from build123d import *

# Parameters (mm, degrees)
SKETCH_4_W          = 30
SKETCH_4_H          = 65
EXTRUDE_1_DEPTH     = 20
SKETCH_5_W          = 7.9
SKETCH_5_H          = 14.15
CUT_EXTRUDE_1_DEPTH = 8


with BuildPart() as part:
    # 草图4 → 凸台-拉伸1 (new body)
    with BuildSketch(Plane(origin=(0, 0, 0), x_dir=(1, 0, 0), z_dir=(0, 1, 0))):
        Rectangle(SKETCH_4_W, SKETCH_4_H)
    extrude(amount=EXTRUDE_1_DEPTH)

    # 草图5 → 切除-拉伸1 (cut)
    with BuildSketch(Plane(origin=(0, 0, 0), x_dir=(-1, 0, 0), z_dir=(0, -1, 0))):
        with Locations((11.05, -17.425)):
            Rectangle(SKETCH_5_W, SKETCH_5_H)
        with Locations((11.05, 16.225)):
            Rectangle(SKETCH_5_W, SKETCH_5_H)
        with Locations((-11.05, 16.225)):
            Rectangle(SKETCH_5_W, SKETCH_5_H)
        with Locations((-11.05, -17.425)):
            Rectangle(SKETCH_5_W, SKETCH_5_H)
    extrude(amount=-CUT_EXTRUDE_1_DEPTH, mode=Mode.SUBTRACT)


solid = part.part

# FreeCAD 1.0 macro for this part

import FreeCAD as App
import Part
import Sketcher

V = App.Vector
Q = App.Units.Quantity


def add_polygon(sketch, points):
    """Adds a closed chain of lines whose ends are joined by coincident constraints."""
    first, n = sketch.GeometryCount, len(points)
    for a, b in zip(points, points[1:] + points[:1]):
        sketch.addGeometry(Part.LineSegment(App.Vector(*a, 0), App.Vector(*b, 0)), False)
    for i in range(n):
        sketch.addConstraint(Sketcher.Constraint("Coincident", first + i, 2, first + (i + 1) % n, 1))

doc = App.newDocument("Part")
body = doc.addObject("PartDesign::Body", "Body")

# Sketch on XZ plane
sketch1 = doc.addObject("Sketcher::SketchObject", "Sketch")
body.addObject(sketch1)
sketch1.AttachmentSupport = (doc.XZ_Plane, [""])
sketch1.MapMode = "FlatFace"
add_polygon(sketch1, [(-15, -32.5), (-15, 32.5), (15, 32.5), (15, -32.5)])  # lines 0-3
sketch1.addConstraint([
    Sketcher.Constraint("Vertical", 0),
    Sketcher.Constraint("Horizontal", 1),
    Sketcher.Constraint("Vertical", 2),
    Sketcher.Constraint("Horizontal", 3),
    Sketcher.Constraint("Symmetric", 0, 2, 2, 2, -1, 1),
    Sketcher.Constraint("DistanceX", 1, 1, 1, 2, Q("30 mm")),
    Sketcher.Constraint("DistanceY", 0, 1, 0, 2, Q("65 mm")),
])
pad1 = doc.addObject("PartDesign::Pad", "Pad")
body.addObject(pad1)
pad1.Profile = sketch1
pad1.Length = 20
pad1.Reversed = True

# Sketch on XZ plane
sketch2 = doc.addObject("Sketcher::SketchObject", "Sketch001")
body.addObject(sketch2)
sketch2.AttachmentSupport = (doc.XZ_Plane, [""])
sketch2.MapMode = "FlatFace"
add_polygon(sketch2, [(-7.1, 10.35), (-7.1, 24.5), (-15, 24.5), (-15, 10.35)])  # lines 0-3
add_polygon(sketch2, [(-7.1, -23.3), (-7.1, -9.15), (-15, -9.15), (-15, -23.3)])  # lines 4-7
add_polygon(sketch2, [(15, -23.3), (15, -9.15), (7.1, -9.15), (7.1, -23.3)])  # lines 8-11
add_polygon(sketch2, [(15, 10.35), (15, 24.5), (7.1, 24.5), (7.1, 10.35)])  # lines 12-15
sketch2.addConstraint([
    Sketcher.Constraint("Vertical", 0),
    Sketcher.Constraint("Horizontal", 1),
    Sketcher.Constraint("Vertical", 2),
    Sketcher.Constraint("Horizontal", 3),
    Sketcher.Constraint("Vertical", 4),
    Sketcher.Constraint("Horizontal", 5),
    Sketcher.Constraint("Vertical", 6),
    Sketcher.Constraint("Horizontal", 7),
    Sketcher.Constraint("Vertical", 8),
    Sketcher.Constraint("Horizontal", 9),
    Sketcher.Constraint("Vertical", 10),
    Sketcher.Constraint("Horizontal", 11),
    Sketcher.Constraint("Vertical", 12),
    Sketcher.Constraint("Horizontal", 13),
    Sketcher.Constraint("Vertical", 14),
    Sketcher.Constraint("Horizontal", 15),
    Sketcher.Constraint("Symmetric", 5, 2, 8, 2, -2),
    Sketcher.Constraint("Symmetric", 7, 2, 10, 2, -2),
    Sketcher.Constraint("Symmetric", 1, 2, 12, 2, -2),
    Sketcher.Constraint("Symmetric", 3, 2, 14, 2, -2),
    Sketcher.Constraint("Vertical", 3, 2, 4, 2),
    Sketcher.Constraint("Vertical", 2, 2, 5, 2),
    Sketcher.Constraint("Equal", 2, 4),
    Sketcher.Constraint("DistanceX", 1, 2, 1, 1, Q("7.9 mm")),
    Sketcher.Constraint("DistanceX", 1, 2, -1, 1, Q("15 mm")),
    Sketcher.Constraint("DistanceY", 0, 1, 0, 2, Q("14.15 mm")),
    Sketcher.Constraint("DistanceY", -1, 1, 0, 2, Q("24.5 mm")),
    Sketcher.Constraint("DistanceY", 6, 2, -1, 1, Q("23.3 mm")),
])
pocket1 = doc.addObject("PartDesign::Pocket", "Pocket")
body.addObject(pocket1)
pocket1.Profile = sketch2
pocket1.Length = 8

doc.recompute()
